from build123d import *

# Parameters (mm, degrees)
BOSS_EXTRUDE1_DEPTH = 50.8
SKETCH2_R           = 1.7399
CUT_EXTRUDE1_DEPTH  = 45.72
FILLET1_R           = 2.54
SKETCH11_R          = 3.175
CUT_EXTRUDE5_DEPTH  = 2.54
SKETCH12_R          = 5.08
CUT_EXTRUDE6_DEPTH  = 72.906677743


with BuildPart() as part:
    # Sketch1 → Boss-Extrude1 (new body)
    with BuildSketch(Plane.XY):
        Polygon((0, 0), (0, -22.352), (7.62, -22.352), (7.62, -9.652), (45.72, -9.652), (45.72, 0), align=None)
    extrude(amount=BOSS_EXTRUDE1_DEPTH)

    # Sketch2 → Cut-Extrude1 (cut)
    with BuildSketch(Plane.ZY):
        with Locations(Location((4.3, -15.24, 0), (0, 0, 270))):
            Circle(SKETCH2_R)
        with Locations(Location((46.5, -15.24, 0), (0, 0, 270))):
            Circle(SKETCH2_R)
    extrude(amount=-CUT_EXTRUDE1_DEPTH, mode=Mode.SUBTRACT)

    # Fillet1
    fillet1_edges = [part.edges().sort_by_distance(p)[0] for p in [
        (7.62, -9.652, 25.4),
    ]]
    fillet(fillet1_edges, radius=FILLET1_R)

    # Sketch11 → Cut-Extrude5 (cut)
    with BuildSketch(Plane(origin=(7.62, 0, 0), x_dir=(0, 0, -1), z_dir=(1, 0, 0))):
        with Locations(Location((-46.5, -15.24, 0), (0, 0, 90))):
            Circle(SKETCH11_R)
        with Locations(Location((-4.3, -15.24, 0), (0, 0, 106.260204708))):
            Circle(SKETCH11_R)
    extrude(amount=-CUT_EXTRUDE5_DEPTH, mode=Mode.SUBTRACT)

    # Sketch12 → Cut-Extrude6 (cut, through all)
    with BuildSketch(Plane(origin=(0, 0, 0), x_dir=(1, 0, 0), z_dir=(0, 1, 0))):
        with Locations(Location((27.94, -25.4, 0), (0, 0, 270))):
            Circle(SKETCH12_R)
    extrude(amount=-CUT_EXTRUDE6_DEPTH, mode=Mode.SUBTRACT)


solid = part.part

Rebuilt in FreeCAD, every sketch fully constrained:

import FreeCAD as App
import Part
import Sketcher
Q = App.Units.Quantity


def edges_at(feature, points):
    """Names of the edges that pass closest to the given points."""
    edges = feature.Shape.Edges
    near = lambda p: min(range(len(edges)), key=lambda i: edges[i].distToShape(Part.Vertex(*p))[0])
    return sorted({f"Edge{near(p) + 1}" for p in points})


def add_polygon(sketch, points):
    """Adds a closed chain of lines whose ends are joined by coincident constraints."""
    first, n = sketch.GeometryCount, len(points)
    for a, b in zip(points, points[1:] + points[:1]):
        sketch.addGeometry(Part.LineSegment(App.Vector(*a, 0), App.Vector(*b, 0)), False)
    for i in range(n):
        sketch.addConstraint(Sketcher.Constraint("Coincident", first + i, 2, first + (i + 1) % n, 1))

doc = App.newDocument("Part")
body = doc.addObject("PartDesign::Body", "Body")

# Sketch on XY plane
sketch1 = doc.addObject("Sketcher::SketchObject", "Sketch")
body.addObject(sketch1)
sketch1.AttachmentSupport = (doc.XY_Plane, [""])
sketch1.MapMode = "FlatFace"
add_polygon(sketch1, [(0, 0), (0, -22.352), (7.62, -22.352), (7.62, -9.652), (45.72, -9.652), (45.72, 0)])  # lines 0-5
sketch1.addConstraint(Sketcher.Constraint("Vertical", 0))
sketch1.addConstraint(Sketcher.Constraint("Horizontal", 1))
sketch1.addConstraint(Sketcher.Constraint("Vertical", 2))
sketch1.addConstraint(Sketcher.Constraint("Horizontal", 3))
sketch1.addConstraint(Sketcher.Constraint("Vertical", 4))
sketch1.addConstraint(Sketcher.Constraint("Horizontal", 5))
sketch1.addConstraint(Sketcher.Constraint("Coincident", 5, 2, -1, 1))
sketch1.addConstraint(Sketcher.Constraint("DistanceX", 1, 1, 1, 2, Q("0.3 in")))
sketch1.addConstraint(Sketcher.Constraint("DistanceX", 3, 1, 3, 2, Q("1.5 in")))
sketch1.addConstraint(Sketcher.Constraint("DistanceY", 2, 1, 2, 2, Q("0.5 in")))
sketch1.addConstraint(Sketcher.Constraint("DistanceY", 0, 2, 0, 1, Q("0.88 in")))
pad1 = doc.addObject("PartDesign::Pad", "Pad")
body.addObject(pad1)
pad1.Profile = sketch1
pad1.Length = Q("2 in")

# Sketch on YZ plane
sketch2 = doc.addObject("Sketcher::SketchObject", "Sketch001")
body.addObject(sketch2)
sketch2.AttachmentSupport = (doc.YZ_Plane, [""])
sketch2.MapMode = "FlatFace"
sketch2.addGeometry(Part.Circle(App.Vector(-15.24, 4.3, 0), App.Vector(0, 0, 1), 1.7399), False)
sketch2.addGeometry(Part.Circle(App.Vector(-15.24, 46.5, 0), App.Vector(0, 0, 1), 1.7399), False)
sketch2.addConstraint(Sketcher.Constraint("Equal", 0, 1))
sketch2.addConstraint(Sketcher.Constraint("Vertical", 0, 3, 1, 3))
sketch2.addConstraint(Sketcher.Constraint("Diameter", 0, Q("0.137 in")))
sketch2.addConstraint(Sketcher.Constraint("DistanceX", 0, 3, -1, 1, Q("0.6 in")))
sketch2.addConstraint(Sketcher.Constraint("DistanceY", -1, 1, 0, 3, 4.3))
sketch2.addConstraint(Sketcher.Constraint("DistanceY", -1, 1, 1, 3, 46.5))
pocket1 = doc.addObject("PartDesign::Pocket", "Pocket")
body.addObject(pocket1)
pocket1.Profile = sketch2
pocket1.Length = Q("1.8 in")
pocket1.Reversed = True
doc.recompute()

fillet = doc.addObject("PartDesign::Fillet", "Fillet")
body.addObject(fillet)
fillet.Base = (pocket1, edges_at(pocket1, [(7.62, -9.652, 25.4)]))
fillet.Radius = Q("0.1 in")

# Sketch on YZ plane
sketch3 = doc.addObject("Sketcher::SketchObject", "Sketch002")
body.addObject(sketch3)
sketch3.AttachmentSupport = (doc.YZ_Plane, [""])
sketch3.MapMode = "FlatFace"
sketch3.AttachmentOffset = App.Placement(App.Vector(0, 0, 0.3 * 25.4), App.Rotation())
sketch3.addGeometry(Part.Circle(App.Vector(-15.24, 46.5, 0), App.Vector(0, 0, 1), 3.175), False)
sketch3.addGeometry(Part.Circle(App.Vector(-15.24, 4.3, 0), App.Vector(0, 0, 1), 3.175), False)
sketch3.addConstraint(Sketcher.Constraint("Equal", 0, 1))
sketch3.addConstraint(Sketcher.Constraint("Vertical", 0, 3, 1, 3))
sketch3.addConstraint(Sketcher.Constraint("Diameter", 0, Q("0.25 in")))
sketch3.addConstraint(Sketcher.Constraint("DistanceX", 0, 3, -1, 1, Q("0.6 in")))
sketch3.addConstraint(Sketcher.Constraint("DistanceY", -1, 1, 0, 3, 46.5))
sketch3.addConstraint(Sketcher.Constraint("DistanceY", -1, 1, 1, 3, 4.3))
pocket2 = doc.addObject("PartDesign::Pocket", "Pocket001")
body.addObject(pocket2)
pocket2.Profile = sketch3
pocket2.Length = Q("0.1 in")

# Sketch on XZ plane
sketch4 = doc.addObject("Sketcher::SketchObject", "Sketch003")
body.addObject(sketch4)
sketch4.AttachmentSupport = (doc.XZ_Plane, [""])
sketch4.MapMode = "FlatFace"
sketch4.addGeometry(Part.Circle(App.Vector(27.94, 25.4, 0), App.Vector(0, 0, 1), 5.08), False)
sketch4.addConstraint(Sketcher.Constraint("Diameter", 0, Q("0.4 in")))
sketch4.addConstraint(Sketcher.Constraint("DistanceY", -1, 1, 0, 3, Q("1 in")))
sketch4.addConstraint(Sketcher.Constraint("DistanceX", -1, 1, 0, 3, Q("1.1 in")))
pocket3 = doc.addObject("PartDesign::Pocket", "Pocket002")
body.addObject(pocket3)
pocket3.Profile = sketch4
pocket3.Type = "ThroughAll"
pocket3.Reversed = True

doc.recompute()
